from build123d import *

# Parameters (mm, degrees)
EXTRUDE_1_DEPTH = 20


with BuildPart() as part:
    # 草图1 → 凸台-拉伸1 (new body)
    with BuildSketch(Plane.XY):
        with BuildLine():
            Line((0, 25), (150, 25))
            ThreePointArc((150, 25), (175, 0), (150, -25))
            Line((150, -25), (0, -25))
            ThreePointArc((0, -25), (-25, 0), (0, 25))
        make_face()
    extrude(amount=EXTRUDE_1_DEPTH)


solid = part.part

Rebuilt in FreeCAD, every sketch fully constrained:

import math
import FreeCAD as App
import Part
import Sketcher

V = App.Vector
Q = App.Units.Quantity

doc = App.newDocument("Part")
body = doc.addObject("PartDesign::Body", "Body")

# Sketch on XY plane
sketch1 = doc.addObject("Sketcher::SketchObject", "Sketch")
body.addObject(sketch1)
sketch1.AttachmentSupport = (doc.XY_Plane, [""])
sketch1.MapMode = "FlatFace"
sketch1.addGeometry([
    Part.LineSegment(V(150, 25, 0), V(0, 25, 0)),
    Part.ArcOfCircle(Part.Circle(V(0, 0, 0), V(0, 0, 1), 25), math.radians(90), math.radians(270)),
    Part.LineSegment(V(0, -25, 0), V(150, -25, 0)),
    Part.ArcOfCircle(Part.Circle(V(150, 0, 0), V(0, 0, 1), 25), math.radians(-90), math.radians(90)),
], False)
sketch1.addConstraint([
    Sketcher.Constraint("Tangent", 0, 2, 1, 1),
    Sketcher.Constraint("Tangent", 1, 2, 2, 1),
    Sketcher.Constraint("Tangent", 2, 2, 3, 1),
    Sketcher.Constraint("Tangent", 3, 2, 0, 1),
    Sketcher.Constraint("Horizontal", 0),
    Sketcher.Constraint("Horizontal", 2),
    Sketcher.Constraint("Coincident", 1, 3, -1, 1),
    Sketcher.Constraint("Radius", 1, Q("25 mm")),
    Sketcher.Constraint("DistanceX", 0, 2, 0, 1, Q("150 mm")),
])
pad1 = doc.addObject("PartDesign::Pad", "Pad")
body.addObject(pad1)
pad1.Profile = sketch1
pad1.Length = 20

doc.recompute()
